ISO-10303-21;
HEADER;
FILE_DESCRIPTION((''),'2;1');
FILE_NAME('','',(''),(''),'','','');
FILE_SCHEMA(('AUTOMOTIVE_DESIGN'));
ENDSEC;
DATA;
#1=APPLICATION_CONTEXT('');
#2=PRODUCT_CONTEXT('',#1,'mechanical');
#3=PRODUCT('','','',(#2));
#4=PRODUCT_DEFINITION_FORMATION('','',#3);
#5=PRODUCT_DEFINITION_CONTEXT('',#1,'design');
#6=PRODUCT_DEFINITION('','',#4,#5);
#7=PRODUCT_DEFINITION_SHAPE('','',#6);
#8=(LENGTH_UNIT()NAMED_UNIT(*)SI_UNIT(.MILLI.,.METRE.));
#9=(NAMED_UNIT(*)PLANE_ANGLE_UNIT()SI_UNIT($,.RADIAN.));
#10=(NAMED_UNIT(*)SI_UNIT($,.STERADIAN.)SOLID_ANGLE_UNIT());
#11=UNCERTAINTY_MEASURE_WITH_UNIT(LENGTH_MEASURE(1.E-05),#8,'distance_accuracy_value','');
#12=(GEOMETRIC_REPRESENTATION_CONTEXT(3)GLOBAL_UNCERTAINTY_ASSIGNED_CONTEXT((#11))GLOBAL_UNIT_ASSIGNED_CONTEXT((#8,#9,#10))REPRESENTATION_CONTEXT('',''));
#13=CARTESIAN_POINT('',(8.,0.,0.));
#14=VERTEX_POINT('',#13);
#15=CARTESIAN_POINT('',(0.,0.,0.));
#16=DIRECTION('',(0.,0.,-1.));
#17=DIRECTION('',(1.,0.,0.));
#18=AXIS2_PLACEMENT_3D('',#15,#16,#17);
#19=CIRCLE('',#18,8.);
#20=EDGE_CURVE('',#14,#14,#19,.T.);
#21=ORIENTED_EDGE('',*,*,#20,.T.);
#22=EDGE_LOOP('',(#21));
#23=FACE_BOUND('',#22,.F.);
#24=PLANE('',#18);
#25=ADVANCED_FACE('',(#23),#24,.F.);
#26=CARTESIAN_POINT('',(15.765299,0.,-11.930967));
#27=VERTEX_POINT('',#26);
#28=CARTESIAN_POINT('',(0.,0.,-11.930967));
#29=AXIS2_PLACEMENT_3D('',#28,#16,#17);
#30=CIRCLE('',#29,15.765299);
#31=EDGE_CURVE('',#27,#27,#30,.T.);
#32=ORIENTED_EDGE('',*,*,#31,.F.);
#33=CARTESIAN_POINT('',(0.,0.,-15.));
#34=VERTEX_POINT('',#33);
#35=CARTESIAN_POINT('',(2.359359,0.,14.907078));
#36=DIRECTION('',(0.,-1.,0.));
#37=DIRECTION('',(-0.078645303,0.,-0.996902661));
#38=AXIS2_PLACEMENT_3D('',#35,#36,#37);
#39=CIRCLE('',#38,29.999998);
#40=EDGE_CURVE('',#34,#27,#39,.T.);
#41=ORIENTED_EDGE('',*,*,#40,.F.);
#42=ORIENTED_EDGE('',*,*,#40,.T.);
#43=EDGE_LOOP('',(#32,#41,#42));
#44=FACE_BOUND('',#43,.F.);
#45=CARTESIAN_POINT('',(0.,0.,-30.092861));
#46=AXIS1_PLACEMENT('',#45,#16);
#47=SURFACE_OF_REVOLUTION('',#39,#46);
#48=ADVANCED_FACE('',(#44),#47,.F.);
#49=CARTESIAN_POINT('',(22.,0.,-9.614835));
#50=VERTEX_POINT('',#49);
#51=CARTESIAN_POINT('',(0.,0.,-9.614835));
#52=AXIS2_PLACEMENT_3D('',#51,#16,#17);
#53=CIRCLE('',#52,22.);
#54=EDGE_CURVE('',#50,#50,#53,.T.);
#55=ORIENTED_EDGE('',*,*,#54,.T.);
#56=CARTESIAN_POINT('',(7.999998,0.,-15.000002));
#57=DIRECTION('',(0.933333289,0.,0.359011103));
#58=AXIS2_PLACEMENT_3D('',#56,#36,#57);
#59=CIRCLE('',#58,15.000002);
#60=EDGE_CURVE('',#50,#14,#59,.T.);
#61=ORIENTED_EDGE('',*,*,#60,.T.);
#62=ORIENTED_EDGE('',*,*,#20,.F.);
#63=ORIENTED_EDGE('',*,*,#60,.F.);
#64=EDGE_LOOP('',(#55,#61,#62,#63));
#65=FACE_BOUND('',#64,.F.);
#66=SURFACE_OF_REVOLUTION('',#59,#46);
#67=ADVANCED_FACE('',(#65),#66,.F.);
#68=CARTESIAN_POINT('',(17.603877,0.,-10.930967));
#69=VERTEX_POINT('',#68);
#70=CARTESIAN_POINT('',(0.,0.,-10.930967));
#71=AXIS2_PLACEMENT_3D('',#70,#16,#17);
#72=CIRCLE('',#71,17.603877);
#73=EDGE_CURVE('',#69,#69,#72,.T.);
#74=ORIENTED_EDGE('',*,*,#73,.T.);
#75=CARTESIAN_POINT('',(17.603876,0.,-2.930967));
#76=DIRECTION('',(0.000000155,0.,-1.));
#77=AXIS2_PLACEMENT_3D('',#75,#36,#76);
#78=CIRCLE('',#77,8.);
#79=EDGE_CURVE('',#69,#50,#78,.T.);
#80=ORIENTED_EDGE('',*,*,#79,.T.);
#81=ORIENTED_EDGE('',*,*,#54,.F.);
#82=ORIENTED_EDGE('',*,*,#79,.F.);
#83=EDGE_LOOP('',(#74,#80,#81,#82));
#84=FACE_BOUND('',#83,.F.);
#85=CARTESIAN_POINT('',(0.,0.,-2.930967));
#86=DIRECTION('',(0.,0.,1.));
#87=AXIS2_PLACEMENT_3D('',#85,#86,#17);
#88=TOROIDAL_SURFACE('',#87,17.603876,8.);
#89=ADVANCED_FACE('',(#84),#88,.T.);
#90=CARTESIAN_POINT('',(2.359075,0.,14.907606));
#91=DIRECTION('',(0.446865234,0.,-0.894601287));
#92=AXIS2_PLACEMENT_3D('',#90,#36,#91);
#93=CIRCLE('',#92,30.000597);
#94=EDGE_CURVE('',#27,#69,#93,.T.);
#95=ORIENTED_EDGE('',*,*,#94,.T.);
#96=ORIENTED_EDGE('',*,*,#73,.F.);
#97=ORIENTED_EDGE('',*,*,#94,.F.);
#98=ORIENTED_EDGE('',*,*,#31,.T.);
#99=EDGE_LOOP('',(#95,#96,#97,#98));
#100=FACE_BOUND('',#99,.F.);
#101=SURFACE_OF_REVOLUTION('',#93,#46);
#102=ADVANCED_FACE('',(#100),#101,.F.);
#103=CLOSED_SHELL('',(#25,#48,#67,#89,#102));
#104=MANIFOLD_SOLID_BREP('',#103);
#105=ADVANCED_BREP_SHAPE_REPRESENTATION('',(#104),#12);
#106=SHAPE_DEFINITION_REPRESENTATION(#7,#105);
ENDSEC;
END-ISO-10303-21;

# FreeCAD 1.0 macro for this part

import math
import FreeCAD as App
import Part
import Sketcher

V = App.Vector
Q = App.Units.Quantity

doc = App.newDocument("Part")
body = doc.addObject("PartDesign::Body", "Body")

# Sketch on XZ plane
sketch1 = doc.addObject("Sketcher::SketchObject", "Sketch")
body.addObject(sketch1)
sketch1.AttachmentSupport = (doc.XZ_Plane, [""])
sketch1.MapMode = "FlatFace"
sketch1.addGeometry([
    Part.ArcOfCircle(Part.Circle(V(2.359359, 14.907078, 0), V(0, 0, 1), 29.999998), math.radians(-94.510702), math.radians(-63.457297)),  # 0
    Part.ArcOfCircle(Part.Circle(V(2.359075, 14.907606, 0), V(0, 0, 1), 30.000597), math.radians(-63.457262), math.radians(-59.459323)),  # 1
    Part.ArcOfCircle(Part.Circle(V(17.603876, -2.930967, 0), V(0, 0, 1), 8), math.radians(-89.999991), math.radians(-56.666217)),  # 2
    Part.ArcOfCircle(Part.Circle(V(7.999998, -15.000002, 0), V(0, 0, 1), 15.000002), math.radians(21.039477), math.radians(89.999994)),  # 3
    Part.LineSegment(V(8, 0, 0), V(0, 0, 0)),  # 4
    Part.LineSegment(V(0, 0, 0), V(0, -15, 0)),  # 5
], False)
sketch1.addConstraint([
    Sketcher.Constraint("Tangent", 0, 2, 1, 1),
    Sketcher.Constraint("Coincident", 1, 2, 2, 1),
    Sketcher.Constraint("Coincident", 2, 2, 3, 1),
    Sketcher.Constraint("Tangent", 3, 2, 4, 1),
    Sketcher.Constraint("Coincident", 4, 2, 5, 1),
    Sketcher.Constraint("Coincident", 5, 2, 0, 1),
    Sketcher.Constraint("Horizontal", 4),
    Sketcher.Constraint("Vertical", 5),
    Sketcher.Constraint("Coincident", 4, 2, -1, 1),
    Sketcher.Constraint("Vertical", 2, 3, 1, 2),
    Sketcher.Constraint("Radius", 2, Q("8 mm")),
    Sketcher.Constraint("DistanceX", 4, 2, 4, 1, Q("8 mm")),
    Sketcher.Constraint("DistanceY", 5, 2, 5, 1, Q("15 mm")),
    Sketcher.Constraint("DistanceX", -1, 1, 2, 2, Q("22 mm")),
    Sketcher.Constraint("DistanceY", 0, 2, 2, 3, Q("9 mm")),
    Sketcher.Constraint("Radius", 0, Q("29.999998 mm")),
    Sketcher.Constraint("Radius", 1, Q("30.000597 mm")),
    Sketcher.Constraint("Radius", 3, Q("15.000002 mm")),
    Sketcher.Constraint("DistanceX", -1, 1, 0, 2, Q("15.765299 mm")),
])
revolution = doc.addObject("PartDesign::Revolution", "Revolution")
body.addObject(revolution)
revolution.Profile = sketch1
revolution.ReferenceAxis = (sketch1, ["V_Axis"])
revolution.Angle = 360

doc.recompute()
